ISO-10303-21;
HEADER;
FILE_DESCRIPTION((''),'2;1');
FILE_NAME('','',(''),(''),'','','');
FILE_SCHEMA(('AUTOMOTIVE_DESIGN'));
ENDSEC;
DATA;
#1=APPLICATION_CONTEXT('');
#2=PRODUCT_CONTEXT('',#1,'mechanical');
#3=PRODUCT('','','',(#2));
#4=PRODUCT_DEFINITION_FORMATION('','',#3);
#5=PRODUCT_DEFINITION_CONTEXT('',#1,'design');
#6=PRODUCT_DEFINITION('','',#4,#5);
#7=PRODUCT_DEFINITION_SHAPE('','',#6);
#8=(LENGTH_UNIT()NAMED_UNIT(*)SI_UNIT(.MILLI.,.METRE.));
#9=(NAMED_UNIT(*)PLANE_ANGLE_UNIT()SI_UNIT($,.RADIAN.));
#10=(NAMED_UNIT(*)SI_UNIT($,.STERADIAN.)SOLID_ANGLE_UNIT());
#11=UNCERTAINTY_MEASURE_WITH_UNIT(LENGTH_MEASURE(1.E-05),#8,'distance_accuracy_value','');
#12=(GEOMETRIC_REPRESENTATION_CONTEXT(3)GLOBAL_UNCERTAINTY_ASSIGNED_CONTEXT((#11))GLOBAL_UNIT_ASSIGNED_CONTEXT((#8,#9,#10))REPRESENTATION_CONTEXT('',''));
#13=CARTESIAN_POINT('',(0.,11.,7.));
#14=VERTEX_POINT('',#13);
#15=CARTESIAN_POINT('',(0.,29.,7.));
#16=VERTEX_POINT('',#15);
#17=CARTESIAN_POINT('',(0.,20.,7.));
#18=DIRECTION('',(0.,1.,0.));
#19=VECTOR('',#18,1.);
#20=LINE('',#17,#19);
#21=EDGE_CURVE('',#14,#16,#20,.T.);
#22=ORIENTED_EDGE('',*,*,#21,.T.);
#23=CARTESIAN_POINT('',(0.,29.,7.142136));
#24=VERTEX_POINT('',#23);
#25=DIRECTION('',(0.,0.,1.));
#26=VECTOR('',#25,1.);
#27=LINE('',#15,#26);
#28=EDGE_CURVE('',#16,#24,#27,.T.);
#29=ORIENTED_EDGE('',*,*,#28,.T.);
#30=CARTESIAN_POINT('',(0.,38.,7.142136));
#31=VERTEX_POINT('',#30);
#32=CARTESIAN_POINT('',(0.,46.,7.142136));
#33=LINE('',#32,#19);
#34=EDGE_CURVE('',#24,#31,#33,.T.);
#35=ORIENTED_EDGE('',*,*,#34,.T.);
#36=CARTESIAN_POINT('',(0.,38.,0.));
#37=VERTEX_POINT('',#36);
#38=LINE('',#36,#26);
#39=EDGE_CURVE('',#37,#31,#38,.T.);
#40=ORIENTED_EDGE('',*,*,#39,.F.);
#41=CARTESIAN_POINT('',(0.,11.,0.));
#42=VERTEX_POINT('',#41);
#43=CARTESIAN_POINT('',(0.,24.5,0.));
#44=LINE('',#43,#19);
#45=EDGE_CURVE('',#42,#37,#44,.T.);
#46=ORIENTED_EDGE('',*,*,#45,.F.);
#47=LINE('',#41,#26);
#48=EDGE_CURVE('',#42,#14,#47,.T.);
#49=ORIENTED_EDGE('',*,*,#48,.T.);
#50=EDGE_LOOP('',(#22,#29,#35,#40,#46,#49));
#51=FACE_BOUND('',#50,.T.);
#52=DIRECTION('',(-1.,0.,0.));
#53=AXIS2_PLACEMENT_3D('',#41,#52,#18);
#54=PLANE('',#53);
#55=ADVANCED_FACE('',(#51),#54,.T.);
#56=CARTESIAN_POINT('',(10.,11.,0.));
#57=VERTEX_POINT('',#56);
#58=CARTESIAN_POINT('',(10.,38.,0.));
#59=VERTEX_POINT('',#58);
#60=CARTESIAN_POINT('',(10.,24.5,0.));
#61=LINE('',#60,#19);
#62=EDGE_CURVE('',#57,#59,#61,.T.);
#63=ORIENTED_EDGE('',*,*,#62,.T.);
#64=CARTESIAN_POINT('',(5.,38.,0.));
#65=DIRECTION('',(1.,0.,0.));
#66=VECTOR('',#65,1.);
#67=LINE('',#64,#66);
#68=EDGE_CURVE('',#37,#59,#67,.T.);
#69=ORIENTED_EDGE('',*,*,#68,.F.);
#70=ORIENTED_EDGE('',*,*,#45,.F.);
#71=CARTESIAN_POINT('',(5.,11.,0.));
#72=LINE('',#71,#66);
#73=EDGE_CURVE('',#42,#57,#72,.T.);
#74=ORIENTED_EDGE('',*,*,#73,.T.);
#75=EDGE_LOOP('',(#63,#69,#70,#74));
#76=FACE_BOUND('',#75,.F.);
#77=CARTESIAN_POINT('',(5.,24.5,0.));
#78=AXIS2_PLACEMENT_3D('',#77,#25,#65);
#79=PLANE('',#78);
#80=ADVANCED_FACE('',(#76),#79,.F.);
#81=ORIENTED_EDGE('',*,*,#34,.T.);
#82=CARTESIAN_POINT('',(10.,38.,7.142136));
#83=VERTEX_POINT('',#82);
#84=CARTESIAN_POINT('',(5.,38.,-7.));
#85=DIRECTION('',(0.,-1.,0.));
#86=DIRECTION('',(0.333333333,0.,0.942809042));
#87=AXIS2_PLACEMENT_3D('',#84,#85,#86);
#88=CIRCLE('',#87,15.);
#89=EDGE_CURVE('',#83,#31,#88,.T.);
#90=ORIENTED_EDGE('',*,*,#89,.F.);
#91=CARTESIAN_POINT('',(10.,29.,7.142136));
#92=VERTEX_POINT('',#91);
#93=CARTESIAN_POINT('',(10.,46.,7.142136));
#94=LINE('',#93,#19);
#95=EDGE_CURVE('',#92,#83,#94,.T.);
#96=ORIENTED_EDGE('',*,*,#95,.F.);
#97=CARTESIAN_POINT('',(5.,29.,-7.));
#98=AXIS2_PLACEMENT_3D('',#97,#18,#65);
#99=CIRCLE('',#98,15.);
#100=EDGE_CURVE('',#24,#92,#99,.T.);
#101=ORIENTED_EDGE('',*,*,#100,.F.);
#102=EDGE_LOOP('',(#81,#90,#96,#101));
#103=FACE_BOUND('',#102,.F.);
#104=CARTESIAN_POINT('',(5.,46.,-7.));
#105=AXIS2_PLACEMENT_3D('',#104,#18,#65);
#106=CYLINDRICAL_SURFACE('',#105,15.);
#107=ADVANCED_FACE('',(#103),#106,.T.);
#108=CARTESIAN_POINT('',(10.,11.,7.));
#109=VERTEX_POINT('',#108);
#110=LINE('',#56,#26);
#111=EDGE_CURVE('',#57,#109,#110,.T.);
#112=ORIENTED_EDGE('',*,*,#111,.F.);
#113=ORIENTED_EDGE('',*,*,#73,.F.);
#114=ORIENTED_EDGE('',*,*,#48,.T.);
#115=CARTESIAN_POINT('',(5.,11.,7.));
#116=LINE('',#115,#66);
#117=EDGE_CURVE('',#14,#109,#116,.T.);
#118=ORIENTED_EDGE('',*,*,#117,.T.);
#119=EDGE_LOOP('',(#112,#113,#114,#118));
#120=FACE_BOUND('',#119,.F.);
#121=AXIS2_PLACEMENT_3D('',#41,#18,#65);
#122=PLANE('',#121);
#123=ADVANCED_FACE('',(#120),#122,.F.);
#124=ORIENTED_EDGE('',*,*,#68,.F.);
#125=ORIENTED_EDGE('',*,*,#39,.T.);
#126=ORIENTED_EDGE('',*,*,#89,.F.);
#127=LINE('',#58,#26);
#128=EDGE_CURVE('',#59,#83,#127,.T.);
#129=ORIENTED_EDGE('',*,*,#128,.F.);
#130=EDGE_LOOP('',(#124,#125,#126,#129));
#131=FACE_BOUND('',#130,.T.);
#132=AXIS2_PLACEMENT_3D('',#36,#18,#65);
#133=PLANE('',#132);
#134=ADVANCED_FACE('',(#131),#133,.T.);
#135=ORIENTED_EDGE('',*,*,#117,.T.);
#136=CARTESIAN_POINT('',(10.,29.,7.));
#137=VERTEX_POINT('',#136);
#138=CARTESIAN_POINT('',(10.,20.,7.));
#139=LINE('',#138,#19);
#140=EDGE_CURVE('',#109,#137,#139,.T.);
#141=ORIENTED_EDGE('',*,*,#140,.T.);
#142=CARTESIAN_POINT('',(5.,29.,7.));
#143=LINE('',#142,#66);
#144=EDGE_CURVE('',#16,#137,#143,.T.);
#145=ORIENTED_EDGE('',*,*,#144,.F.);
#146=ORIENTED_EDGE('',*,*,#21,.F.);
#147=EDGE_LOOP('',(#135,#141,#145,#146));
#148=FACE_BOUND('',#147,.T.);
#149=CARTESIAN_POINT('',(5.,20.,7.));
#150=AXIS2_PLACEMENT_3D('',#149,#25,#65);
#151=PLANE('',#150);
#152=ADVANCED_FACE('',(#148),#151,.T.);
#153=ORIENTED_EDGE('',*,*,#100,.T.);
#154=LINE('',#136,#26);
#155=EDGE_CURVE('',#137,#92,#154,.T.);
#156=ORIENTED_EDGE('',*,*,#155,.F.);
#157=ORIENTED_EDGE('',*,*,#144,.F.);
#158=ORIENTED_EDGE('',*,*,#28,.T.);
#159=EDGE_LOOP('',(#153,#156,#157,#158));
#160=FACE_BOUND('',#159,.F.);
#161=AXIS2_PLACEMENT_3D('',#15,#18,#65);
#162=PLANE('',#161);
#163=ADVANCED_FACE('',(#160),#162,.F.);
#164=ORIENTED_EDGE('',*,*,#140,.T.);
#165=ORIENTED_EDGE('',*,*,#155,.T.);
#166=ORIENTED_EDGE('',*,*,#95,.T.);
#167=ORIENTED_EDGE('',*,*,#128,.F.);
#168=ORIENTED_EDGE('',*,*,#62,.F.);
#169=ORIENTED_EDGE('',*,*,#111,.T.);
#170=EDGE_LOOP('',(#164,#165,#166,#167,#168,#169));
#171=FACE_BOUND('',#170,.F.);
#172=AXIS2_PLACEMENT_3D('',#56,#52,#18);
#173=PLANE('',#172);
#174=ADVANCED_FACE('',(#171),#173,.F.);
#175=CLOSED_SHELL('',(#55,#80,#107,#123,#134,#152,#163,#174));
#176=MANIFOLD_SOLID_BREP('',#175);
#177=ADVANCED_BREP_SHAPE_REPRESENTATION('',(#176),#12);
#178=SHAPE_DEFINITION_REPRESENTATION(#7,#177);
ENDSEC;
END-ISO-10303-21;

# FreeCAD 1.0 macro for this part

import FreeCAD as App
import Part
import Sketcher
from FreeCAD import Vector


def add_polygon(sketch, points):
    """Adds a closed chain of lines whose ends are joined by coincident constraints."""
    first, n = sketch.GeometryCount, len(points)
    for a, b in zip(points, points[1:] + points[:1]):
        sketch.addGeometry(Part.LineSegment(App.Vector(*a, 0), App.Vector(*b, 0)), False)
    for i in range(n):
        sketch.addConstraint(Sketcher.Constraint("Coincident", first + i, 2, first + (i + 1) % n, 1))

doc = App.newDocument("Part")
body = doc.addObject("PartDesign::Body", "Body")

sketch1 = body.newObject("Sketcher::SketchObject", "Sketch")
sketch1.AttachmentSupport = (doc.getObject("XY_Plane"), [""])
sketch1.MapMode = "FlatFace"
sketch1.AttachmentOffset = App.Placement(Vector(0, 0, 7), App.Rotation())
add_polygon(sketch1, [(0, 18), (0, 0), (10, 0), (10, 18)])
sketch1.addConstraint([
    Sketcher.Constraint("Vertical", 0),
    Sketcher.Constraint("Horizontal", 1),
    Sketcher.Constraint("Vertical", 2),
    Sketcher.Constraint("Horizontal", 3),
    Sketcher.Constraint("Coincident", 0, 2, -1, 1),
    Sketcher.Constraint("DistanceX", 1, 1, 1, 2, 10.0),
    Sketcher.Constraint("DistanceY", 0, 2, 0, 1, 18.0),
])
pad1 = body.newObject("PartDesign::Pad", "Pad")
pad1.Profile = sketch1
pad1.Length = 10
body2 = doc.addObject("PartDesign::Body", "Body001")

sketch2 = body2.newObject("Sketcher::SketchObject", "Sketch001")
sketch2.AttachmentSupport = (doc.getObject("XY_Plane001"), [""])
sketch2.MapMode = "FlatFace"
add_polygon(sketch2, [(0, 27), (0, 0), (10, 0), (10, 27)])
sketch2.addConstraint([
    Sketcher.Constraint("Vertical", 0),
    Sketcher.Constraint("Horizontal", 1),
    Sketcher.Constraint("Vertical", 2),
    Sketcher.Constraint("Horizontal", 3),
    Sketcher.Constraint("Coincident", 0, 2, -1, 1),
    Sketcher.Constraint("DistanceX", 1, 1, 1, 2, 10.0),
    Sketcher.Constraint("DistanceY", 0, 2, 0, 1, 27.0),
])
pad2 = body2.newObject("PartDesign::Pad", "Pad001")
pad2.Profile = sketch2
pad2.Length = 8
body3 = doc.addObject("PartDesign::Body", "Body002")

sketch3 = body3.newObject("Sketcher::SketchObject", "Sketch002")
sketch3.AttachmentSupport = (doc.getObject("XY_Plane002"), [""])
sketch3.MapMode = "FlatFace"
sketch3.addGeometry(Part.Circle(Vector(0, 0, 0), Vector(0, 0, 1), 15), False)
sketch3.addConstraint([
    Sketcher.Constraint("Coincident", 0, 3, -1, 1),
    Sketcher.Constraint("Diameter", 0, 30.0),
])
pad3 = body3.newObject("PartDesign::Pad", "Pad002")
pad3.Profile = sketch3
pad3.Length = 40
body4 = doc.addObject("PartDesign::Body", "Body003")
doc.recompute()

body3.Placement = App.Placement(Vector(0, 0, 0), App.Rotation(Vector(1, 0, 0), 90))
boolean = body4.newObject("PartDesign::Boolean", "Boolean")
boolean.Type = "Fuse"
boolean.addObjects([body3])
body5 = doc.addObject("PartDesign::Body", "Body004")
doc.recompute()

body4.Placement = App.Placement(Vector(5, 35, -7), App.Rotation(Vector(0, 0, 1), 0))
boolean2 = body5.newObject("PartDesign::Boolean", "Boolean001")
boolean2.Type = "Fuse"
boolean2.addObjects([body4])
doc.recompute()

boolean3 = body5.newObject("PartDesign::Boolean", "Boolean002")
boolean3.Type = "Common"
boolean3.addObjects([body2])
doc.recompute()

boolean4 = body5.newObject("PartDesign::Boolean", "Boolean003")
boolean4.Type = "Cut"
boolean4.addObjects([body])
body6 = doc.addObject("PartDesign::Body", "Body005")
doc.recompute()

body5.Placement = App.Placement(Vector(0, 11, 0), App.Rotation(Vector(0, 0, 1), 0))
boolean5 = body6.newObject("PartDesign::Boolean", "Boolean004")
boolean5.Type = "Fuse"
boolean5.addObjects([body5])

doc.recompute()
